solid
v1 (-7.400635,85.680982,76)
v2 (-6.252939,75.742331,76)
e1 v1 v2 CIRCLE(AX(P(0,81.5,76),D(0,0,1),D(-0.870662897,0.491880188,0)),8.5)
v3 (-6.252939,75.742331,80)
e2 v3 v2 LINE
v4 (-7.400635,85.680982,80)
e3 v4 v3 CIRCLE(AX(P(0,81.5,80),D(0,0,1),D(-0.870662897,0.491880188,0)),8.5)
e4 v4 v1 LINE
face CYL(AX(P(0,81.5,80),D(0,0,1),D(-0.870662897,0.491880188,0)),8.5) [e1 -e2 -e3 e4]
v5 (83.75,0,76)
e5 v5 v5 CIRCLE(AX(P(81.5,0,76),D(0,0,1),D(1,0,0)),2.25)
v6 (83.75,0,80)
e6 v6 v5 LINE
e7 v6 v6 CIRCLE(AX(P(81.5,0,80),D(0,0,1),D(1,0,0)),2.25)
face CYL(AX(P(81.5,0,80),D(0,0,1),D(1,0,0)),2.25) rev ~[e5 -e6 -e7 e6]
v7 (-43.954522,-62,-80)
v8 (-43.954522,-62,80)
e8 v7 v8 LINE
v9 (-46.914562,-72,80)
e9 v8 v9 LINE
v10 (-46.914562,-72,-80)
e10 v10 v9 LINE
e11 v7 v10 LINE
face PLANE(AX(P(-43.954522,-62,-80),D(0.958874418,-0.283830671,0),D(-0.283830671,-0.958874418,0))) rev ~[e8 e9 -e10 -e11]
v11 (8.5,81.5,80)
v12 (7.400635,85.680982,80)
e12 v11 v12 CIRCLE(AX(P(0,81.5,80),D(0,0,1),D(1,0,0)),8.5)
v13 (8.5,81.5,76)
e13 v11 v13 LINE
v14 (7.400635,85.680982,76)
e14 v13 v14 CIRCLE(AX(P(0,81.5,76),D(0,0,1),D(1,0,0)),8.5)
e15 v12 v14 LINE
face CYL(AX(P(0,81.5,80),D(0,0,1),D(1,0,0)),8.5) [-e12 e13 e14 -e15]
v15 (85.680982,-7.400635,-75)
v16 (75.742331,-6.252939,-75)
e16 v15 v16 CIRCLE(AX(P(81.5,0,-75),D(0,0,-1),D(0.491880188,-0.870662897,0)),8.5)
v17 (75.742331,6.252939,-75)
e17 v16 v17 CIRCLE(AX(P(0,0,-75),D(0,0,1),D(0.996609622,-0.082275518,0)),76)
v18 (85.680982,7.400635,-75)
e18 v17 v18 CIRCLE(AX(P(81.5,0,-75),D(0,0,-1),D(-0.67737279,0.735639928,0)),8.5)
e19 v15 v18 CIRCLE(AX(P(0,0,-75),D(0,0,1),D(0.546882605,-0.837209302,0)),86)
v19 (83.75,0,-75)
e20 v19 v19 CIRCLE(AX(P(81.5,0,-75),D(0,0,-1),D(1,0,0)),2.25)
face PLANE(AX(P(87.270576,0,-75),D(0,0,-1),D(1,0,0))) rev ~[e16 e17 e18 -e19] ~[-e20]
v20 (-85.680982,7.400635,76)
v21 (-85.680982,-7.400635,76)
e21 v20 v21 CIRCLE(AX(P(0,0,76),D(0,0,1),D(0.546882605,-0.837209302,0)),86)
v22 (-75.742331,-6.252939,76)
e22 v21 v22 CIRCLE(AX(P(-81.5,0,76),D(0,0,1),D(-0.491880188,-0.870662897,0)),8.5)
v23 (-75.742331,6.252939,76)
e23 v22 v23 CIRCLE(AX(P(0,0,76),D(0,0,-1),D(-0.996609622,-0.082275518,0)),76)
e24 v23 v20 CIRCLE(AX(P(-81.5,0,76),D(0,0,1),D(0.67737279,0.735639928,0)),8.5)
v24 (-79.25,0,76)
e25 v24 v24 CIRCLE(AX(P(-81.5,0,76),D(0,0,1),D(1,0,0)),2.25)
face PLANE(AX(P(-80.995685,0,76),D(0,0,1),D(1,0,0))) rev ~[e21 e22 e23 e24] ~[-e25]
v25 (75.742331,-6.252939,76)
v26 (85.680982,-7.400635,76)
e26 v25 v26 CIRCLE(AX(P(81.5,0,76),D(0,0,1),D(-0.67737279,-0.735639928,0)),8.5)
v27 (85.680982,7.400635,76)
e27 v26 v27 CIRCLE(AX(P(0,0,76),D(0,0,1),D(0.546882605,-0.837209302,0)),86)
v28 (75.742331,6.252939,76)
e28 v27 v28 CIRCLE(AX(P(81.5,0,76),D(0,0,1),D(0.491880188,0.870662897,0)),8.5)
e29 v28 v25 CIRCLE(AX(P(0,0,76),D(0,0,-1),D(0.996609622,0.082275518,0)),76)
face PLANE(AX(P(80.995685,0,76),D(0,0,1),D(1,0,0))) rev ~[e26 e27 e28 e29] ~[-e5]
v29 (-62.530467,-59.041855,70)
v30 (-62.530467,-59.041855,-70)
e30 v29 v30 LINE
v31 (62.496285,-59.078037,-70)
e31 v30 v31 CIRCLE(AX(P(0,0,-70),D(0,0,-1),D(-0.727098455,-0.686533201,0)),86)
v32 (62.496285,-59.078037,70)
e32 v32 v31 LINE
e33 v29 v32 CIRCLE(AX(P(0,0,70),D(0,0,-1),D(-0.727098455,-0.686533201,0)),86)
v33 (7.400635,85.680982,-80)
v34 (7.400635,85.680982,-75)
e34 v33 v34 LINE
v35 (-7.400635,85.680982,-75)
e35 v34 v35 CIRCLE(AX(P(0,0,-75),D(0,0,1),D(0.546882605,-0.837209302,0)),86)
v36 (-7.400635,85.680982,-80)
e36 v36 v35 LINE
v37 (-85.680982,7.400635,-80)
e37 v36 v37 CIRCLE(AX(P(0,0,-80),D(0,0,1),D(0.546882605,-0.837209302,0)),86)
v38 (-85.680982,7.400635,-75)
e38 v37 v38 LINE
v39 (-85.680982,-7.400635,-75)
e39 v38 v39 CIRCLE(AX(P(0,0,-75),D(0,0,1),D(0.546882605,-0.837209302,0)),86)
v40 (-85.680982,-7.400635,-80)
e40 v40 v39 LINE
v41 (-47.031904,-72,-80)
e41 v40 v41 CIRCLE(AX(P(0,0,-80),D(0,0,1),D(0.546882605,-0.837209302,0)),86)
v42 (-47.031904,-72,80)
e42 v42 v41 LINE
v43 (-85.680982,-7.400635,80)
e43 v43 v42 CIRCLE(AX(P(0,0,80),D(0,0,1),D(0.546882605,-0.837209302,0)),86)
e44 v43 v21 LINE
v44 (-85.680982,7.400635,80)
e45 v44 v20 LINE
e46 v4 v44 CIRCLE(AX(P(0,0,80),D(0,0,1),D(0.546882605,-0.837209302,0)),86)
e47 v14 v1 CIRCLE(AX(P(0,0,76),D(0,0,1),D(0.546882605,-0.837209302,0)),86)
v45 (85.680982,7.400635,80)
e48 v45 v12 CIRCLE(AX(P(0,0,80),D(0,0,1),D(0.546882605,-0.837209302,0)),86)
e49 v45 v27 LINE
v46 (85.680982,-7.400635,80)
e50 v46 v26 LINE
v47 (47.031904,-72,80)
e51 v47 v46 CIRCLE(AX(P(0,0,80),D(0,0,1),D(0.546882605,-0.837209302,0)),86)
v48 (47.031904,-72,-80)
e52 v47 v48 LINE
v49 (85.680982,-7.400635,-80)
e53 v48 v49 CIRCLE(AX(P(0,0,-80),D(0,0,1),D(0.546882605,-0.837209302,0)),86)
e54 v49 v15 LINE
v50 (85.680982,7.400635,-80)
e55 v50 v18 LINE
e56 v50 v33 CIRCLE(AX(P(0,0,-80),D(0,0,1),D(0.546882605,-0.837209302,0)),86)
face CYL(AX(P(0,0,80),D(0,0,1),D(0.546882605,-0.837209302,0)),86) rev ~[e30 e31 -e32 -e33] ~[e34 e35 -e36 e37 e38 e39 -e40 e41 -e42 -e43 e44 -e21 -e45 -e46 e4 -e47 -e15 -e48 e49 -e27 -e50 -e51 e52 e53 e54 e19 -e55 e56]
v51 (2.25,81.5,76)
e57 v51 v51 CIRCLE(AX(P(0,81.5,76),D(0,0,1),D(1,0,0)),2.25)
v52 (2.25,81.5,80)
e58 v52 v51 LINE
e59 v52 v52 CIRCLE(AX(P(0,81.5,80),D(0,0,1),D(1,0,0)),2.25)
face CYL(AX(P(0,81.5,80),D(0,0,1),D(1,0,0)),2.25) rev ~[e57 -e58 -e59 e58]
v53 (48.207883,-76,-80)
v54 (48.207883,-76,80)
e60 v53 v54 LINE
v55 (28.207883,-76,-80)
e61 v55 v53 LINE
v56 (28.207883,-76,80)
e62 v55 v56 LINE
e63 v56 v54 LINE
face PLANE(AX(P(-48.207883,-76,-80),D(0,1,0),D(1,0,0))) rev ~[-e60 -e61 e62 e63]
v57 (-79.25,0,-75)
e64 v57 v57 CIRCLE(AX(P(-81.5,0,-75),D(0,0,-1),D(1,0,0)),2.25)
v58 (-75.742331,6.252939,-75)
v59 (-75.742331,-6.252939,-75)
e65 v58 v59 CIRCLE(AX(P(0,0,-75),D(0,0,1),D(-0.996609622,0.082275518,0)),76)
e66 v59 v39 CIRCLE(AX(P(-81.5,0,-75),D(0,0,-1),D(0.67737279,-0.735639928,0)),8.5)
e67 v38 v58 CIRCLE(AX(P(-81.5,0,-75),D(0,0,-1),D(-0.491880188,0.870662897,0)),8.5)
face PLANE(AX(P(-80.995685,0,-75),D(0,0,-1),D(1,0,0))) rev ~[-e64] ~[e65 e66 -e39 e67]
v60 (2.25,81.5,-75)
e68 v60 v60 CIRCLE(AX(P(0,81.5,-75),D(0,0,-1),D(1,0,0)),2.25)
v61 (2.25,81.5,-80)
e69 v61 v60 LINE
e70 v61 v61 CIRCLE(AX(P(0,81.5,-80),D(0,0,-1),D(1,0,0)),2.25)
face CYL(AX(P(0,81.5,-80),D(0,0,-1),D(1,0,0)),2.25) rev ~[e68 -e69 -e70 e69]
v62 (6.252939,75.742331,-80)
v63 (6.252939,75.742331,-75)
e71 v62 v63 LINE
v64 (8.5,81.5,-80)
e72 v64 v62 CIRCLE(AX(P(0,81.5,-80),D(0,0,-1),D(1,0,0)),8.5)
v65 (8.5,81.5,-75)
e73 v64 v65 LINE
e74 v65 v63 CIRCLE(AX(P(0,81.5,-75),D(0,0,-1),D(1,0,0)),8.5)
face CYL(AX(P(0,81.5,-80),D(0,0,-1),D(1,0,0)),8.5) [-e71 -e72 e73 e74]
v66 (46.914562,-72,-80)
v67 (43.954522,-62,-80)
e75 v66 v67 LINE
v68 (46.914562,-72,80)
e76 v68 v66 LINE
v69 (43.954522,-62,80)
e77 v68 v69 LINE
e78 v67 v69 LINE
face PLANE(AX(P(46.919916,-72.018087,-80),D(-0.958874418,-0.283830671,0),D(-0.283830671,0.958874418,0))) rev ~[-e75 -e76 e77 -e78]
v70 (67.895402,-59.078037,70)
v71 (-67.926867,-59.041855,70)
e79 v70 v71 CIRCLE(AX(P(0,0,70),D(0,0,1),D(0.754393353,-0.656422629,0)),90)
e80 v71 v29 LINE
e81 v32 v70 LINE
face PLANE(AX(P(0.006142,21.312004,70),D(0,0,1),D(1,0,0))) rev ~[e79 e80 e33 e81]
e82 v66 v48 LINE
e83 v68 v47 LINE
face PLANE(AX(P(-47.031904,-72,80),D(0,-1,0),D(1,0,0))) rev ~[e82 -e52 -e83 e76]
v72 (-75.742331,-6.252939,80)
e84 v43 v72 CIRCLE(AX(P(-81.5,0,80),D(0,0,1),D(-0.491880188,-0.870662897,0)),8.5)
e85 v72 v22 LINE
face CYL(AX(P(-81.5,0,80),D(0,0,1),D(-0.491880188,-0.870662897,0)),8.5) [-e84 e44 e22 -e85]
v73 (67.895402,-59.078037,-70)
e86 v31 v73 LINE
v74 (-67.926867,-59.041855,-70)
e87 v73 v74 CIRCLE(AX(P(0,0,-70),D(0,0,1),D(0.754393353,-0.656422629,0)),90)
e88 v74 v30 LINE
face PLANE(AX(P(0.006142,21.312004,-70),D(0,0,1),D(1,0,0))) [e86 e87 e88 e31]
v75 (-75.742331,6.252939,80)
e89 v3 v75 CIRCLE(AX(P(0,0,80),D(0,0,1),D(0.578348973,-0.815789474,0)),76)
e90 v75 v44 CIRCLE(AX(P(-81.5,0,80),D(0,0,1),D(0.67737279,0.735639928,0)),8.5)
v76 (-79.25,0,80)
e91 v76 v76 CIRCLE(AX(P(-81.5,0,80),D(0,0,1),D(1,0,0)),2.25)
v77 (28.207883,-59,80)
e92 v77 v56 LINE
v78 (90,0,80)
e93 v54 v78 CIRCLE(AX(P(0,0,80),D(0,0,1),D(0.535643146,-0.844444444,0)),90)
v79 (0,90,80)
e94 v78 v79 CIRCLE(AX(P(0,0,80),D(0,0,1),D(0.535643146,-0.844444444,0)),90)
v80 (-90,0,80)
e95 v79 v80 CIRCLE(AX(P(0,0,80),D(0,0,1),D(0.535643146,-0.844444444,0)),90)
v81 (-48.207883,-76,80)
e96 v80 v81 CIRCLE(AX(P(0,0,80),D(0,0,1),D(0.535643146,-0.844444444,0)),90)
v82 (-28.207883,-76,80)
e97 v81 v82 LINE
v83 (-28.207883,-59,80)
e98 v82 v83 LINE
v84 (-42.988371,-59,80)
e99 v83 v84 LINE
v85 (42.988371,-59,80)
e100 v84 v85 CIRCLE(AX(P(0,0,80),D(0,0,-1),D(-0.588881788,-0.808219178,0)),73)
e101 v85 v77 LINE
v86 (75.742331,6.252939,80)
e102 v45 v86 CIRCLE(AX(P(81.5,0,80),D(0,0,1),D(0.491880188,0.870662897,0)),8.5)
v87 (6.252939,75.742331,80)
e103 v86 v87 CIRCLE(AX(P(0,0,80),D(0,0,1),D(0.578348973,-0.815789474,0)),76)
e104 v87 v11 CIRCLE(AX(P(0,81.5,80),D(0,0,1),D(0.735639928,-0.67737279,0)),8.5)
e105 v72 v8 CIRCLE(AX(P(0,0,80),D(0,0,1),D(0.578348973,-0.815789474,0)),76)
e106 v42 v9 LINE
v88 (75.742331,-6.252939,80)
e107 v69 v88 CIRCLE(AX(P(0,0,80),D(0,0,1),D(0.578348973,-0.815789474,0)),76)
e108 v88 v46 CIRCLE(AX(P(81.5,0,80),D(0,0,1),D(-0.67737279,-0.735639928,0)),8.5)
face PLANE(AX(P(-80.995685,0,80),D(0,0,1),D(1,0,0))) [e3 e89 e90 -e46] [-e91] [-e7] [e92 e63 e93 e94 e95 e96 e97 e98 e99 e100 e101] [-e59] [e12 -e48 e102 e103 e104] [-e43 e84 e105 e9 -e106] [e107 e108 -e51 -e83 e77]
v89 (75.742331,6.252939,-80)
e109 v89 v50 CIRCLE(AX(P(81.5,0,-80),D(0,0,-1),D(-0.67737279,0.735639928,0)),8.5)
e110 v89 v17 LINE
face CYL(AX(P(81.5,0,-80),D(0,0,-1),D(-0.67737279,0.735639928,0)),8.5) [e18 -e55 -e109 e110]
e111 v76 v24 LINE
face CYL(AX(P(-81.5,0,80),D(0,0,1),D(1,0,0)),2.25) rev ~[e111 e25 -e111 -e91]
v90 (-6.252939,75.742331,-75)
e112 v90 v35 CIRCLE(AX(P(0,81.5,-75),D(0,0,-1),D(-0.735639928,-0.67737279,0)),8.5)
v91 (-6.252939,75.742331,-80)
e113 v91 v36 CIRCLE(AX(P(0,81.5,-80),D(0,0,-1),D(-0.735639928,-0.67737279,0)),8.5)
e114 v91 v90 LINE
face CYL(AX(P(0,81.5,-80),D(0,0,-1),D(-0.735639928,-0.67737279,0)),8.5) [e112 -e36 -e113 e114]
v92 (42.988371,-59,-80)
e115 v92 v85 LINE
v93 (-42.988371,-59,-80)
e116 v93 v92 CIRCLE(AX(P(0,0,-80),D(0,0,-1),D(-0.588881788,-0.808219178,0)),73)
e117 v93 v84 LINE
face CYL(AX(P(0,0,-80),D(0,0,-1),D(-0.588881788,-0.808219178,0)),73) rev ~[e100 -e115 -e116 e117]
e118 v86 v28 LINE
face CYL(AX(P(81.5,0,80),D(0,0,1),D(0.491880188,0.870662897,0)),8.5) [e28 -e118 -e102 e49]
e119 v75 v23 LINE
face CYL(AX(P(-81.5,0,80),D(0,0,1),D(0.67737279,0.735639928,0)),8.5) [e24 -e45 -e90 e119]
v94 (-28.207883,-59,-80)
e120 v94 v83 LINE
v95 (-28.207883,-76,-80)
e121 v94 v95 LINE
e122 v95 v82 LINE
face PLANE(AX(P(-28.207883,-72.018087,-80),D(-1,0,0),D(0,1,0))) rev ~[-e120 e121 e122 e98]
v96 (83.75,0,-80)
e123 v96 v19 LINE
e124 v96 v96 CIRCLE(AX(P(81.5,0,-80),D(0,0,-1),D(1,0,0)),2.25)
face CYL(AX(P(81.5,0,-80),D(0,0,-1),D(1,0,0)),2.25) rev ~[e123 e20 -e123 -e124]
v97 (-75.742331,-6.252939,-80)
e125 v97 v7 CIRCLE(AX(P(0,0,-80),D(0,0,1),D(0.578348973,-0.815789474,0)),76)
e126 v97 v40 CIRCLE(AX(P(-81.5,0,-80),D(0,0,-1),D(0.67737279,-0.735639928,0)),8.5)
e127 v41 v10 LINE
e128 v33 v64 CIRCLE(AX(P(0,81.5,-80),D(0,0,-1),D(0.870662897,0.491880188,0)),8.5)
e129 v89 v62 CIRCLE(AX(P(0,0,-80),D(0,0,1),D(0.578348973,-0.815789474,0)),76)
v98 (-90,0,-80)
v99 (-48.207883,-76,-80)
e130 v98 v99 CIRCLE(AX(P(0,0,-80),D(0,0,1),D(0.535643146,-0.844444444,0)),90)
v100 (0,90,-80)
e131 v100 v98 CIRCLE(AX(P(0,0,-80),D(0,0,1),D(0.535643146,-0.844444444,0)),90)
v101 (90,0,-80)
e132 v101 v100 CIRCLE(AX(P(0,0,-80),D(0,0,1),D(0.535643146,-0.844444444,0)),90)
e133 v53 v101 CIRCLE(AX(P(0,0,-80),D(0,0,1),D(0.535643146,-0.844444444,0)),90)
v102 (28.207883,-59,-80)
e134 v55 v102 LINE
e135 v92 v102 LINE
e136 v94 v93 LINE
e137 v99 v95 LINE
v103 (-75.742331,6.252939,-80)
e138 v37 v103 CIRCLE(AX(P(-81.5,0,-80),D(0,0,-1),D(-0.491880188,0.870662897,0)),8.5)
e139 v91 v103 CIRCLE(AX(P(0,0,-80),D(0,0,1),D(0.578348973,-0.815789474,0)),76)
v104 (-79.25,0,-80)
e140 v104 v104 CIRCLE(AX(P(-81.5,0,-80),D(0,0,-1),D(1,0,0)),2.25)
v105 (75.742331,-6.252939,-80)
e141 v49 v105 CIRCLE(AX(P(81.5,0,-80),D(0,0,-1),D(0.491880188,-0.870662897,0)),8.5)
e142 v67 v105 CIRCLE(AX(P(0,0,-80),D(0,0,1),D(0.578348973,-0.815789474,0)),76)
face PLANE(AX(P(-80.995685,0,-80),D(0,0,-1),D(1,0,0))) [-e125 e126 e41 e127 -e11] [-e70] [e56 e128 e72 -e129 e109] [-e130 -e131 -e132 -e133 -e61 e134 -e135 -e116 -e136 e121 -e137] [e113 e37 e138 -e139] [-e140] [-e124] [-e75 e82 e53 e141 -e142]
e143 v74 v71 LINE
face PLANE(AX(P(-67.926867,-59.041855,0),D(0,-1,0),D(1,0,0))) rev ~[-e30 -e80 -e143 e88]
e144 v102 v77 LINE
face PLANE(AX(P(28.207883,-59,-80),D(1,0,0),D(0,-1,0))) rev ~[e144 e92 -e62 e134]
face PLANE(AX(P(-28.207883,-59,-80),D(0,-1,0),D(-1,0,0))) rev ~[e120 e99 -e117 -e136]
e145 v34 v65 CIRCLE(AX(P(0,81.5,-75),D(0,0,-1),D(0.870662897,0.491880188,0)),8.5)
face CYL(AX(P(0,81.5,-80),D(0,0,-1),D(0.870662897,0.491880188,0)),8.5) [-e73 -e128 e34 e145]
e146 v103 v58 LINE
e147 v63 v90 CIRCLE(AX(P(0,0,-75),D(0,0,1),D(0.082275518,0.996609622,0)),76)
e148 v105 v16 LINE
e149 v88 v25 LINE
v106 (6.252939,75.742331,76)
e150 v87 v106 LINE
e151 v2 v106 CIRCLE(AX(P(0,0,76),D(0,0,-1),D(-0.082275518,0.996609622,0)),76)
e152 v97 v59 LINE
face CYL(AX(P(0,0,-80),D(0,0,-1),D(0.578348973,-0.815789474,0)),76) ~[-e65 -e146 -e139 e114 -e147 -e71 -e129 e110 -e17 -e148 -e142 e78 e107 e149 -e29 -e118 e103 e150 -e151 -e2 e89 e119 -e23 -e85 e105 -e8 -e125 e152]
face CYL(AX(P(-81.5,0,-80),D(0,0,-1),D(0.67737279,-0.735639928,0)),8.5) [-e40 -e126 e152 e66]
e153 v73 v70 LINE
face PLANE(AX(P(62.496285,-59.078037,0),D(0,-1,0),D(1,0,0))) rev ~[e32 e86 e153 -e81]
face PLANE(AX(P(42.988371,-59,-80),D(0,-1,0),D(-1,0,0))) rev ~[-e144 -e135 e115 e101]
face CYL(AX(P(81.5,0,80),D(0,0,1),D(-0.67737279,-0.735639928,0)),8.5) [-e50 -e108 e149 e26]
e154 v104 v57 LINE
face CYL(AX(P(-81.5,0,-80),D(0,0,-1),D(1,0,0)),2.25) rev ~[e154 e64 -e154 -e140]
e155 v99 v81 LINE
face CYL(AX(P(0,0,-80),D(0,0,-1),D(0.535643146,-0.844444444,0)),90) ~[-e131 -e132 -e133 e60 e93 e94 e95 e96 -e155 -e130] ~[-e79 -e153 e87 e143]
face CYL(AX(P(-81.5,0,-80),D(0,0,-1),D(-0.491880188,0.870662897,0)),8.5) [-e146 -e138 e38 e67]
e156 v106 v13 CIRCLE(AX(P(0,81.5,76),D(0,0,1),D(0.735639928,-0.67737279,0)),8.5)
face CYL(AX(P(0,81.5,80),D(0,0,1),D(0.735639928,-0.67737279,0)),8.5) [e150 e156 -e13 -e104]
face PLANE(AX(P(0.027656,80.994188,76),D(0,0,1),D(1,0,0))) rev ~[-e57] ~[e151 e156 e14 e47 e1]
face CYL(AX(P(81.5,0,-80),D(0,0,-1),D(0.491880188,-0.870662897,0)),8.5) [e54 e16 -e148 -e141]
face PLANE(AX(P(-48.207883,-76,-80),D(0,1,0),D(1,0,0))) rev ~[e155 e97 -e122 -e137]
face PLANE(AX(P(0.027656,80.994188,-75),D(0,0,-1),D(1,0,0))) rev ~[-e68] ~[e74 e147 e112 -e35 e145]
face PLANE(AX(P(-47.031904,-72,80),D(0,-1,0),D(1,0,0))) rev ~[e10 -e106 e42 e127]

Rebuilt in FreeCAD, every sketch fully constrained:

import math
import FreeCAD as App
import Part
import Sketcher


def add_polygon(sketch, points):
    """Adds a closed chain of lines whose ends are joined by coincident constraints."""
    first, n = sketch.GeometryCount, len(points)
    for a, b in zip(points, points[1:] + points[:1]):
        sketch.addGeometry(Part.LineSegment(App.Vector(*a, 0), App.Vector(*b, 0)), False)
    for i in range(n):
        sketch.addConstraint(Sketcher.Constraint("Coincident", first + i, 2, first + (i + 1) % n, 1))

doc = App.newDocument("Part")
params = doc.addObject("Spreadsheet::Sheet", "Params")
for row, (alias, value) in enumerate([
    ("sketch1_radius", "90 mm"),
    ("pad1_length", "160 mm"),
    ("sketch2_radius", "86 mm"),
    ("sketch3_height", "160 mm"),
    ("pocket2_length", "4 mm"),
    ("sketch4_radius", "76 mm"),
    ("sketch4_radius2", "73 mm"),
    ("pad2_length", "160 mm"),
    ("sketch5_radius", "90 mm"),
    ("sketch5_radius2", "86 mm"),
    ("pocket3_length", "140 mm"),
    ("sketch6_radius", "76 mm"),
    ("sketch6_diameter", "4.5 mm"),
    ("sketch6_radius2", "8.5 mm"),
    ("pad3_length", "4 mm"),
    ("sketch7_radius", "76 mm"),
    ("sketch7_diameter", "4.5 mm"),
    ("sketch7_radius2", "8.5 mm"),
    ("pad4_length", "5 mm"),
], start=1):
    params.set(f"A{row}", alias)
    params.set(f"B{row}", "=" + value)
    params.setAlias(f"B{row}", alias)

body = doc.addObject("PartDesign::Body", "Body")

# Sketch on XY plane
sketch1 = body.newObject("Sketcher::SketchObject", "Sketch")
sketch1.AttachmentSupport = (doc.getObject("XY_Plane"), [""])
sketch1.MapMode = "FlatFace"
sketch1.addGeometry([
    Part.LineSegment(App.Vector(-48, -76, 0), App.Vector(48, -76, 0)),
    Part.ArcOfCircle(Part.Circle(App.Vector(0, 0, 0), App.Vector(0, 0, 1), 90), math.radians(-58), math.radians(238)),
], False)
sketch1.addConstraint([
    Sketcher.Constraint("Coincident", 0, 1, 1, 2),
    Sketcher.Constraint("Coincident", 1, 1, 0, 2),
    Sketcher.Constraint("Horizontal", 0),
    Sketcher.Constraint("Coincident", 1, 3, -1, 1),
    Sketcher.Constraint("Radius", 1, 90.0),
    Sketcher.Constraint("DistanceY", 0, 1, -1, 1, 76.0),
])
sketch1.setExpression("Constraints[4]", "Params.sketch1_radius")
pad1 = body.newObject("PartDesign::Pad", "Pad")
pad1.Profile = sketch1
pad1.setExpression("Length", "Params.pad1_length")

# Sketch on XY plane
sketch2 = body.newObject("Sketcher::SketchObject", "Sketch001")
sketch2.AttachmentSupport = (doc.getObject("XY_Plane"), [""])
sketch2.MapMode = "FlatFace"
sketch2.AttachmentOffset = App.Placement(App.Vector(0, 0, 160), App.Rotation())
sketch2.addGeometry([
    Part.LineSegment(App.Vector(-47, -72, 0), App.Vector(47, -72, 0)),
    Part.ArcOfCircle(Part.Circle(App.Vector(0, 0, 0), App.Vector(0, 0, 1), 86), math.radians(-57), math.radians(237)),
], False)
sketch2.addConstraint([
    Sketcher.Constraint("Coincident", 0, 1, 1, 2),
    Sketcher.Constraint("Coincident", 1, 1, 0, 2),
    Sketcher.Constraint("Horizontal", 0),
    Sketcher.Constraint("Coincident", 1, 3, -1, 1),
    Sketcher.Constraint("Radius", 1, 86.0),
    Sketcher.Constraint("DistanceY", 0, 1, -1, 1, 72.0),
])
sketch2.setExpression("Constraints[4]", "Params.sketch2_radius")
pocket1 = body.newObject("PartDesign::Pocket", "Pocket")
pocket1.Profile = sketch2
pocket1.Type = "ThroughAll"

# Sketch on XZ plane
sketch3 = body.newObject("Sketcher::SketchObject", "Sketch002")
sketch3.AttachmentSupport = (doc.getObject("XZ_Plane"), [""])
sketch3.MapMode = "FlatFace"
sketch3.AttachmentOffset = App.Placement(App.Vector(0, 0, 76), App.Rotation())
add_polygon(sketch3, [(-28, 160), (-28, 0), (28, 0), (28, 160)])  # lines 0-3
sketch3.addConstraint([
    Sketcher.Constraint("Vertical", 0),
    Sketcher.Constraint("Horizontal", 1),
    Sketcher.Constraint("Vertical", 2),
    Sketcher.Constraint("Horizontal", 3),
    Sketcher.Constraint("Symmetric", 0, 2, 1, 2, -1, 1),
    Sketcher.Constraint("DistanceY", 0, 2, 0, 1, 160.0),
    Sketcher.Constraint("DistanceX", 1, 1, 1, 2, 56.415766),
])
sketch3.setExpression("Constraints[9]", "Params.sketch3_height")
pocket2 = body.newObject("PartDesign::Pocket", "Pocket001")
pocket2.Profile = sketch3
pocket2.setExpression("Length", "Params.pocket2_length")

# Sketch on XY plane
sketch4 = body.newObject("Sketcher::SketchObject", "Sketch003")
sketch4.AttachmentSupport = (doc.getObject("XY_Plane"), [""])
sketch4.MapMode = "FlatFace"
sketch4.addGeometry([
    Part.ArcOfCircle(Part.Circle(App.Vector(0, 0, 0), App.Vector(0, 0, 1), 76), math.radians(-55), math.radians(235)),  # 0
    Part.LineSegment(App.Vector(-44, -62, 0), App.Vector(-47, -72, 0)),  # 1
    Part.LineSegment(App.Vector(-47, -72, 0), App.Vector(-28, -72, 0)),  # 2
    Part.LineSegment(App.Vector(-28, -72, 0), App.Vector(-28, -59, 0)),  # 3
    Part.LineSegment(App.Vector(-28, -59, 0), App.Vector(-43, -59, 0)),  # 4
    Part.ArcOfCircle(Part.Circle(App.Vector(0, 0, 0), App.Vector(0, 0, 1), 73), math.radians(-54), math.radians(234)),  # 5
    Part.LineSegment(App.Vector(43, -59, 0), App.Vector(28, -59, 0)),  # 6
    Part.LineSegment(App.Vector(28, -59, 0), App.Vector(28, -72, 0)),  # 7
    Part.LineSegment(App.Vector(28, -72, 0), App.Vector(47, -72, 0)),  # 8
    Part.LineSegment(App.Vector(47, -72, 0), App.Vector(44, -62, 0)),  # 9
], False)
sketch4.addConstraint([
    Sketcher.Constraint("Coincident", 0, 2, 1, 1),
    Sketcher.Constraint("Coincident", 1, 2, 2, 1),
    Sketcher.Constraint("Coincident", 2, 2, 3, 1),
    Sketcher.Constraint("Coincident", 3, 2, 4, 1),
    Sketcher.Constraint("Coincident", 4, 2, 5, 2),
    Sketcher.Constraint("Coincident", 5, 1, 6, 1),
    Sketcher.Constraint("Coincident", 6, 2, 7, 1),
    Sketcher.Constraint("Coincident", 7, 2, 8, 1),
    Sketcher.Constraint("Coincident", 8, 2, 9, 1),
    Sketcher.Constraint("Coincident", 9, 2, 0, 1),
    Sketcher.Constraint("Horizontal", 2),
    Sketcher.Constraint("Vertical", 3),
    Sketcher.Constraint("Horizontal", 4),
    Sketcher.Constraint("Horizontal", 6),
    Sketcher.Constraint("Vertical", 7),
    Sketcher.Constraint("Horizontal", 8),
    Sketcher.Constraint("Coincident", 0, 3, -1, 1),
    Sketcher.Constraint("Coincident", 5, 3, -1, 1),
    Sketcher.Constraint("Symmetric", 3, 2, 6, 2, -2),
    Sketcher.Constraint("Symmetric", 1, 2, 8, 2, -2),
    Sketcher.Constraint("Horizontal", 0, 2, 9, 2),
    Sketcher.Constraint("Radius", 0, 76.0),
    Sketcher.Constraint("Radius", 5, 73.0),
    Sketcher.Constraint("DistanceY", 0, 2, -1, 1, 62.0),
    Sketcher.Constraint("DistanceY", 3, 2, -1, 1, 59.0),
    Sketcher.Constraint("DistanceX", 2, 2, 8, 2, 75.127799),
    Sketcher.Constraint("DistanceX", 2, 1, 2, 2, 18.712033),
    Sketcher.Constraint("DistanceY", 3, 1, 3, 2, 13.018087),
])
sketch4.setExpression("Constraints[21]", "Params.sketch4_radius")
sketch4.setExpression("Constraints[22]", "Params.sketch4_radius2")
pad2 = body.newObject("PartDesign::Pad", "Pad001")
pad2.Profile = sketch4
pad2.setExpression("Length", "Params.pad2_length")
body2 = doc.addObject("PartDesign::Body", "Body001")
doc.recompute()

body.Placement = App.Placement(App.Vector(0, 0, -80), App.Rotation(App.Vector(0, 0, 1), 0))
boolean = body2.newObject("PartDesign::Boolean", "Boolean")
boolean.Type = "Fuse"
boolean.addObjects([body])

# Sketch on XY plane
sketch5 = body2.newObject("Sketcher::SketchObject", "Sketch004")
sketch5.AttachmentSupport = (doc.getObject("XY_Plane001"), [""])
sketch5.MapMode = "FlatFace"
sketch5.addGeometry([
    Part.LineSegment(App.Vector(62, -59, 0), App.Vector(68, -59, 0)),
    Part.ArcOfCircle(Part.Circle(App.Vector(0, 0, 0), App.Vector(0, 0, 1), 90), math.radians(-41), math.radians(221)),
    Part.LineSegment(App.Vector(-68, -59, 0), App.Vector(-63, -59, 0)),
    Part.ArcOfCircle(Part.Circle(App.Vector(0, 0, 0), App.Vector(0, 0, 1), 86), math.radians(-43), math.radians(223)),
], False)
sketch5.addConstraint([
    Sketcher.Constraint("Coincident", 0, 2, 1, 1),
    Sketcher.Constraint("Coincident", 1, 2, 2, 1),
    Sketcher.Constraint("Coincident", 2, 2, 3, 2),
    Sketcher.Constraint("Coincident", 3, 1, 0, 1),
    Sketcher.Constraint("Horizontal", 0),
    Sketcher.Constraint("Horizontal", 2),
    Sketcher.Constraint("Coincident", 1, 3, -1, 1),
    Sketcher.Constraint("Coincident", 3, 3, -1, 1),
    Sketcher.Constraint("Radius", 1, 90.0),
    Sketcher.Constraint("Radius", 3, 86.0),
    Sketcher.Constraint("DistanceX", 2, 1, 2, 2, 5.3964),
    Sketcher.Constraint("DistanceX", -1, 1, 0, 2, 67.895402),
])
sketch5.setExpression("Constraints[8]", "Params.sketch5_radius")
sketch5.setExpression("Constraints[9]", "Params.sketch5_radius2")
pocket3 = body2.newObject("PartDesign::Pocket", "Pocket002")
pocket3.Profile = sketch5
pocket3.setExpression("Length", "Params.pocket3_length")
pocket3.Midplane = True

# Sketch on XY plane
sketch6 = body2.newObject("Sketcher::SketchObject", "Sketch005")
sketch6.AttachmentSupport = (doc.getObject("XY_Plane001"), [""])
sketch6.MapMode = "FlatFace"
sketch6.AttachmentOffset = App.Placement(App.Vector(0, 0, 80), App.Rotation())
sketch6.addGeometry([
    Part.ArcOfCircle(Part.Circle(App.Vector(-81.5, 0, 0), App.Vector(0, 0, 1), 8.5), math.radians(47), math.radians(119)),  # 0
    Part.ArcOfCircle(Part.Circle(App.Vector(-81.5, 0, 0), App.Vector(0, 0, 1), 8.5), math.radians(119), math.radians(180)),  # 1
    Part.ArcOfCircle(Part.Circle(App.Vector(-81.5, 0, 0), App.Vector(0, 0, 1), 8.5), math.radians(180), math.radians(241)),  # 2
    Part.ArcOfCircle(Part.Circle(App.Vector(-81.5, 0, 0), App.Vector(0, 0, 1), 8.5), math.radians(-119), math.radians(-47)),  # 3
    Part.ArcOfCircle(Part.Circle(App.Vector(0, 0, 0), App.Vector(0, 0, 1), 76), math.radians(175.28), math.radians(184.72)),  # 4
    Part.Circle(App.Vector(-81.5, 0, 0), App.Vector(0, 0, 1), 2.2),  # 5
    Part.ArcOfCircle(Part.Circle(App.Vector(0, 81.5, 0), App.Vector(0, 0, 1), 8.5), math.radians(-43), math.radians(0)),  # 6
    Part.ArcOfCircle(Part.Circle(App.Vector(0, 81.5, 0), App.Vector(0, 0, 1), 8.5), math.radians(0), math.radians(29)),  # 7
    Part.ArcOfCircle(Part.Circle(App.Vector(0, 81.5, 0), App.Vector(0, 0, 1), 8.5), math.radians(29), math.radians(90)),  # 8
    Part.ArcOfCircle(Part.Circle(App.Vector(0, 81.5, 0), App.Vector(0, 0, 1), 8.5), math.radians(90), math.radians(151)),  # 9
    Part.ArcOfCircle(Part.Circle(App.Vector(0, 81.5, 0), App.Vector(0, 0, 1), 8.5), math.radians(151), math.radians(223)),  # 10
    Part.ArcOfCircle(Part.Circle(App.Vector(0, 0, 0), App.Vector(0, 0, 1), 76), math.radians(85.28), math.radians(94.72)),  # 11
    Part.Circle(App.Vector(0, 81.5, 0), App.Vector(0, 0, 1), 2.2),  # 12
    Part.ArcOfCircle(Part.Circle(App.Vector(81.5, 0, 0), App.Vector(0, 0, 1), 8.5), math.radians(-133), math.radians(-61)),  # 13
    Part.ArcOfCircle(Part.Circle(App.Vector(81.5, 0, 0), App.Vector(0, 0, 1), 8.5), math.radians(-61), math.radians(0)),  # 14
    Part.ArcOfCircle(Part.Circle(App.Vector(81.5, 0, 0), App.Vector(0, 0, 1), 8.5), math.radians(0), math.radians(61)),  # 15
    Part.ArcOfCircle(Part.Circle(App.Vector(81.5, 0, 0), App.Vector(0, 0, 1), 8.5), math.radians(61), math.radians(133)),  # 16
    Part.ArcOfCircle(Part.Circle(App.Vector(0, 0, 0), App.Vector(0, 0, 1), 76), math.radians(-4.72), math.radians(4.72)),  # 17
    Part.Circle(App.Vector(81.5, 0, 0), App.Vector(0, 0, 1), 2.2),  # 18
], False)
sketch6.addConstraint([
    Sketcher.Constraint("Tangent", 0, 2, 1, 1),
    Sketcher.Constraint("Tangent", 1, 2, 2, 1),
    Sketcher.Constraint("Tangent", 2, 2, 3, 1),
    Sketcher.Constraint("Coincident", 3, 2, 4, 2),
    Sketcher.Constraint("Coincident", 4, 1, 0, 1),
    Sketcher.Constraint("Tangent", 6, 2, 7, 1),
    Sketcher.Constraint("Tangent", 7, 2, 8, 1),
    Sketcher.Constraint("Tangent", 8, 2, 9, 1),
    Sketcher.Constraint("Tangent", 9, 2, 10, 1),
    Sketcher.Constraint("Coincident", 10, 2, 11, 2),
    Sketcher.Constraint("Coincident", 11, 1, 6, 1),
    Sketcher.Constraint("Tangent", 13, 2, 14, 1),
    Sketcher.Constraint("Tangent", 14, 2, 15, 1),
    Sketcher.Constraint("Tangent", 15, 2, 16, 1),
    Sketcher.Constraint("Coincident", 16, 2, 17, 2),
    Sketcher.Constraint("Coincident", 17, 1, 13, 1),
    Sketcher.Constraint("Coincident", 4, 3, -1, 1),
    Sketcher.Constraint("Coincident", 11, 3, -1, 1),
    Sketcher.Constraint("Coincident", 17, 3, -1, 1),
    Sketcher.Constraint("Coincident", 2, 3, 0, 3),
    Sketcher.Constraint("Coincident", 5, 3, 0, 3),
    Sketcher.Constraint("Coincident", 8, 3, 6, 3),
    Sketcher.Constraint("Coincident", 10, 3, 6, 3),
    Sketcher.Constraint("Coincident", 12, 3, 6, 3),
    Sketcher.Constraint("Coincident", 15, 3, 13, 3),
    Sketcher.Constraint("Coincident", 18, 3, 13, 3),
    Sketcher.Constraint("Equal", 2, 3),
    Sketcher.Constraint("Equal", 3, 6),
    Sketcher.Constraint("Equal", 4, 11),
    Sketcher.Constraint("Equal", 5, 12),
    Sketcher.Constraint("Equal", 10, 13),
    Sketcher.Constraint("Equal", 15, 16),
    Sketcher.Constraint("Equal", 11, 17),
    Sketcher.Constraint("Equal", 12, 18),
    Sketcher.Constraint("Symmetric", 0, 3, 13, 3, -1, 1),
    Sketcher.Constraint("Symmetric", 7, 2, 9, 2, -2),
    Sketcher.Constraint("Symmetric", 2, 2, 13, 2, -2),
    Sketcher.Constraint("PointOnObject", 1, 2, -1),
    Sketcher.Constraint("PointOnObject", 8, 2, -2),
    Sketcher.Constraint("PointOnObject", 14, 2, -1),
    Sketcher.Constraint("Horizontal", 12, 3, 6, 2),
    Sketcher.Constraint("Horizontal", 0, 2, 15, 2),
    Sketcher.Constraint("Vertical", 0, 2, 2, 2),
    Sketcher.Constraint("Radius", 4, 76.0),
    Sketcher.Constraint("Diameter", 5, 4.5),
    Sketcher.Constraint("Radius", 0, 8.5),
    Sketcher.Constraint("DistanceX", 1, 2, -1, 1, 90.0),
    Sketcher.Constraint("DistanceY", -1, 1, 8, 2, 90.0),
    Sketcher.Constraint("DistanceX", 0, 2, -1, 1, 85.680982),
    Sketcher.Constraint("DistanceY", -1, 1, 7, 2, 85.680982),
])
sketch6.setExpression("Constraints[43]", "Params.sketch6_radius")
sketch6.setExpression("Constraints[44]", "Params.sketch6_diameter")
sketch6.setExpression("Constraints[45]", "Params.sketch6_radius2")
pad3 = body2.newObject("PartDesign::Pad", "Pad002")
pad3.Profile = sketch6
pad3.setExpression("Length", "Params.pad3_length")
pad3.Reversed = True

# Sketch on XY plane
sketch7 = body2.newObject("Sketcher::SketchObject", "Sketch006")
sketch7.AttachmentSupport = (doc.getObject("XY_Plane001"), [""])
sketch7.MapMode = "FlatFace"
sketch7.AttachmentOffset = App.Placement(App.Vector(0, 0, -80), App.Rotation())
sketch7.addGeometry([
    Part.ArcOfCircle(Part.Circle(App.Vector(0, 0, 0), App.Vector(0, 0, 1), 76), math.radians(175.28), math.radians(184.72)),  # 0
    Part.ArcOfCircle(Part.Circle(App.Vector(-81.5, 0, 0), App.Vector(0, 0, 1), 8.5), math.radians(-119), math.radians(-47)),  # 1
    Part.ArcOfCircle(Part.Circle(App.Vector(-81.5, 0, 0), App.Vector(0, 0, 1), 8.5), math.radians(-180), math.radians(-119)),  # 2
    Part.ArcOfCircle(Part.Circle(App.Vector(-81.5, 0, 0), App.Vector(0, 0, 1), 8.5), math.radians(119), math.radians(180)),  # 3
    Part.ArcOfCircle(Part.Circle(App.Vector(-81.5, 0, 0), App.Vector(0, 0, 1), 8.5), math.radians(47), math.radians(119)),  # 4
    Part.Circle(App.Vector(-81.5, 0, 0), App.Vector(0, 0, 1), 2.2),  # 5
    Part.ArcOfCircle(Part.Circle(App.Vector(81.5, 0, 0), App.Vector(0, 0, 1), 8.5), math.radians(0), math.radians(61)),  # 6
    Part.ArcOfCircle(Part.Circle(App.Vector(81.5, 0, 0), App.Vector(0, 0, 1), 8.5), math.radians(-61), math.radians(0)),  # 7
    Part.ArcOfCircle(Part.Circle(App.Vector(81.5, 0, 0), App.Vector(0, 0, 1), 8.5), math.radians(-133), math.radians(-61)),  # 8
    Part.ArcOfCircle(Part.Circle(App.Vector(0, 0, 0), App.Vector(0, 0, 1), 76), math.radians(-4.72), math.radians(4.72)),  # 9
    Part.ArcOfCircle(Part.Circle(App.Vector(81.5, 0, 0), App.Vector(0, 0, 1), 8.5), math.radians(61), math.radians(133)),  # 10
    Part.Circle(App.Vector(81.5, 0, 0), App.Vector(0, 0, 1), 2.2),  # 11
    Part.ArcOfCircle(Part.Circle(App.Vector(0, 0, 0), App.Vector(0, 0, 1), 76), math.radians(85.28), math.radians(94.72)),  # 12
    Part.ArcOfCircle(Part.Circle(App.Vector(0, 81.5, 0), App.Vector(0, 0, 1), 8.5), math.radians(90), math.radians(223)),  # 13
    Part.ArcOfCircle(Part.Circle(App.Vector(0, 81.5, 0), App.Vector(0, 0, 1), 8.5), math.radians(29), math.radians(90)),  # 14
    Part.ArcOfCircle(Part.Circle(App.Vector(0, 81.5, 0), App.Vector(0, 0, 1), 8.5), math.radians(0), math.radians(29)),  # 15
    Part.ArcOfCircle(Part.Circle(App.Vector(0, 81.5, 0), App.Vector(0, 0, 1), 8.5), math.radians(-43), math.radians(0)),  # 16
    Part.Circle(App.Vector(0, 81.5, 0), App.Vector(0, 0, 1), 2.2),  # 17
], False)
sketch7.addConstraint([
    Sketcher.Constraint("Coincident", 0, 2, 1, 2),
    Sketcher.Constraint("Tangent", 1, 1, 2, 2),
    Sketcher.Constraint("Tangent", 2, 1, 3, 2),
    Sketcher.Constraint("Tangent", 3, 1, 4, 2),
    Sketcher.Constraint("Coincident", 4, 1, 0, 1),
    Sketcher.Constraint("Tangent", 6, 1, 7, 2),
    Sketcher.Constraint("Tangent", 7, 1, 8, 2),
    Sketcher.Constraint("Coincident", 8, 1, 9, 1),
    Sketcher.Constraint("Coincident", 9, 2, 10, 2),
    Sketcher.Constraint("Tangent", 10, 1, 6, 2),
    Sketcher.Constraint("Coincident", 12, 2, 13, 2),
    Sketcher.Constraint("Tangent", 13, 1, 14, 2),
    Sketcher.Constraint("Tangent", 14, 1, 15, 2),
    Sketcher.Constraint("Tangent", 15, 1, 16, 2),
    Sketcher.Constraint("Coincident", 16, 1, 12, 1),
    Sketcher.Constraint("Coincident", 0, 3, -1, 1),
    Sketcher.Constraint("Coincident", 9, 3, -1, 1),
    Sketcher.Constraint("Coincident", 12, 3, -1, 1),
    Sketcher.Constraint("Coincident", 3, 3, 1, 3),
    Sketcher.Constraint("Coincident", 5, 3, 1, 3),
    Sketcher.Constraint("Coincident", 8, 3, 6, 3),
    Sketcher.Constraint("Coincident", 11, 3, 6, 3),
    Sketcher.Constraint("Coincident", 15, 3, 13, 3),
    Sketcher.Constraint("Coincident", 17, 3, 13, 3),
    Sketcher.Constraint("Equal", 3, 4),
    Sketcher.Constraint("Equal", 4, 6),
    Sketcher.Constraint("Equal", 0, 9),
    Sketcher.Constraint("Equal", 8, 10),
    Sketcher.Constraint("Equal", 5, 11),
    Sketcher.Constraint("Equal", 9, 12),
    Sketcher.Constraint("Equal", 10, 13),
    Sketcher.Constraint("Equal", 15, 16),
    Sketcher.Constraint("Equal", 11, 17),
    Sketcher.Constraint("Symmetric", 1, 3, 6, 3, -1, 1),
    Sketcher.Constraint("Symmetric", 1, 1, 7, 1, -2),
    Sketcher.Constraint("PointOnObject", 13, 3, -2),
    Sketcher.Constraint("PointOnObject", 2, 1, -1),
    Sketcher.Constraint("PointOnObject", 6, 1, -1),
    Sketcher.Constraint("PointOnObject", 13, 1, -2),
    Sketcher.Constraint("Horizontal", 3, 1, 10, 1),
    Sketcher.Constraint("Horizontal", 17, 3, 15, 1),
    Sketcher.Constraint("Vertical", 1, 1, 3, 1),
    Sketcher.Constraint("Radius", 0, 76.0),
    Sketcher.Constraint("Diameter", 5, 4.5),
    Sketcher.Constraint("Radius", 1, 8.5),
    Sketcher.Constraint("DistanceX", 2, 1, -1, 1, 90.0),
    Sketcher.Constraint("DistanceY", -1, 1, 13, 1, 90.0),
    Sketcher.Constraint("DistanceX", 1, 1, -1, 1, 85.680982),
    Sketcher.Constraint("DistanceY", -1, 1, 14, 1, 85.680982),
])
sketch7.setExpression("Constraints[42]", "Params.sketch7_radius")
sketch7.setExpression("Constraints[43]", "Params.sketch7_diameter")
sketch7.setExpression("Constraints[44]", "Params.sketch7_radius2")
pad4 = body2.newObject("PartDesign::Pad", "Pad003")
pad4.Profile = sketch7
pad4.setExpression("Length", "Params.pad4_length")

doc.recompute()
